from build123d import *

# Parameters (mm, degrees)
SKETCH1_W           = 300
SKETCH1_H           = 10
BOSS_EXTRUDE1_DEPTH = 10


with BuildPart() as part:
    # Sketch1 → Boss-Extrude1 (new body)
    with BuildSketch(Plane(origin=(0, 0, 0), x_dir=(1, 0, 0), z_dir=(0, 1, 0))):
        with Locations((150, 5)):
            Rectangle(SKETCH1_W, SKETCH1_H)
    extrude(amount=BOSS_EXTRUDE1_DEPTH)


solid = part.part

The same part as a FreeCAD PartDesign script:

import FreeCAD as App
import Part
import Sketcher
Q = App.Units.Quantity


def add_polygon(sketch, points):
    """Adds a closed chain of lines whose ends are joined by coincident constraints."""
    first, n = sketch.GeometryCount, len(points)
    for a, b in zip(points, points[1:] + points[:1]):
        sketch.addGeometry(Part.LineSegment(App.Vector(*a, 0), App.Vector(*b, 0)), False)
    for i in range(n):
        sketch.addConstraint(Sketcher.Constraint("Coincident", first + i, 2, first + (i + 1) % n, 1))

doc = App.newDocument("Part")
body = doc.addObject("PartDesign::Body", "Body")

# Sketch on XZ plane
sketch1 = doc.addObject("Sketcher::SketchObject", "Sketch")
body.addObject(sketch1)
sketch1.AttachmentSupport = (doc.XZ_Plane, [""])
sketch1.MapMode = "FlatFace"
add_polygon(sketch1, [(0, -10), (0, 0), (300, 0), (300, -10)])  # lines 0-3
sketch1.addConstraint([
    Sketcher.Constraint("Vertical", 0),
    Sketcher.Constraint("Horizontal", 1),
    Sketcher.Constraint("Vertical", 2),
    Sketcher.Constraint("Horizontal", 3),
    Sketcher.Constraint("Coincident", 0, 2, -1, 1),
    Sketcher.Constraint("DistanceX", 1, 1, 1, 2, Q("300 mm")),
    Sketcher.Constraint("DistanceY", 0, 1, 0, 2, Q("10 mm")),
])
pad1 = doc.addObject("PartDesign::Pad", "Pad")
body.addObject(pad1)
pad1.Profile = sketch1
pad1.Length = 10
pad1.Reversed = True

doc.recompute()
